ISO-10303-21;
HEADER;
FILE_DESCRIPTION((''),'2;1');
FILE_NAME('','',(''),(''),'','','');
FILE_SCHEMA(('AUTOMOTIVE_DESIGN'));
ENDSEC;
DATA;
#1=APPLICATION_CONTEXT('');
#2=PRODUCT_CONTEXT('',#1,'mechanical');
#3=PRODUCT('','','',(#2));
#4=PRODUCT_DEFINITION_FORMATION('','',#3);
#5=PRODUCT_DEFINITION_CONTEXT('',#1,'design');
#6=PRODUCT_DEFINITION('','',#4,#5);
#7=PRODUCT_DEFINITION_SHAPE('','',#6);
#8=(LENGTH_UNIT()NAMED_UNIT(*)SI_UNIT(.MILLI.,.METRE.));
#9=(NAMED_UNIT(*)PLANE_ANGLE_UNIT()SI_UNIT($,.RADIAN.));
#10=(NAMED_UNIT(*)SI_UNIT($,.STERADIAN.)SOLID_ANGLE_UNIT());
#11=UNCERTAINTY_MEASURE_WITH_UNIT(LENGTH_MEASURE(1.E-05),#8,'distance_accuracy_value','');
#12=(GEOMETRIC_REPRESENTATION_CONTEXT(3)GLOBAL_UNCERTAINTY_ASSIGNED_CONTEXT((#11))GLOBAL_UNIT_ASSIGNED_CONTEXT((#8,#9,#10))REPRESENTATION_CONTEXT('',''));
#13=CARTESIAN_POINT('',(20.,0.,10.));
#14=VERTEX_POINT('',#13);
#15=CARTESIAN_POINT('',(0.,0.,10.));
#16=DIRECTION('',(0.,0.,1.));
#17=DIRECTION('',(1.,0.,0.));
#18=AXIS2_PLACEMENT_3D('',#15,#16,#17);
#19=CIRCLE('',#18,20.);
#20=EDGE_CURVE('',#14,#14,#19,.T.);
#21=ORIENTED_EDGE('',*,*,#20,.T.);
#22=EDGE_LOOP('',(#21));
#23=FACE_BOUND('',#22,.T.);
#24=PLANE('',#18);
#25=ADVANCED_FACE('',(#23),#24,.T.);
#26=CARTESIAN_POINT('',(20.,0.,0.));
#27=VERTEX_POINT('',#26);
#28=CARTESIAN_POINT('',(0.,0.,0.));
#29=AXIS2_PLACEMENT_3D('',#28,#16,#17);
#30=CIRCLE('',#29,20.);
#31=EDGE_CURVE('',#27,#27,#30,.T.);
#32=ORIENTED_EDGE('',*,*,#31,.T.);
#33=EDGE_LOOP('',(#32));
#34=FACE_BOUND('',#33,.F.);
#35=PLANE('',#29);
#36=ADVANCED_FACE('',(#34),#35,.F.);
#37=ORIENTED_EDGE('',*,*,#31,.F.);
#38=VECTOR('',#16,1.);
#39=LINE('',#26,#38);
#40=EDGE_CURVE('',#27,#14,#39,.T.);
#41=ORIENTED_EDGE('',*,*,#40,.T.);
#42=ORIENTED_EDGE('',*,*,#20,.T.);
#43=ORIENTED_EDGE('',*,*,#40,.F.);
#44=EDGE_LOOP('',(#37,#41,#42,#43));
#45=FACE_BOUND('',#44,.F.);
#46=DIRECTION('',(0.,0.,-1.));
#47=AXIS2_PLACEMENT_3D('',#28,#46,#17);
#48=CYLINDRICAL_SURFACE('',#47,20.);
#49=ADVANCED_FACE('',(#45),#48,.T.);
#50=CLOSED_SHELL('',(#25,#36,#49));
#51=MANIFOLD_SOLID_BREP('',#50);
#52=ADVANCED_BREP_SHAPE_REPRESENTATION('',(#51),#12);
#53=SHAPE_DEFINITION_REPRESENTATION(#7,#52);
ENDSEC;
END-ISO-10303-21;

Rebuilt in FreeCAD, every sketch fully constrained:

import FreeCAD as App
import Part
import Sketcher

doc = App.newDocument("Part")
body = doc.addObject("PartDesign::Body", "Body")

# Sketch on XY plane
sketch1 = body.newObject("Sketcher::SketchObject", "Sketch")
sketch1.AttachmentSupport = (doc.getObject("XY_Plane"), [""])
sketch1.MapMode = "FlatFace"
sketch1.addGeometry(Part.Circle(App.Vector(0, 0, 0), App.Vector(0, 0, 1), 20), False)
sketch1.addConstraint(Sketcher.Constraint("Coincident", 0, 3, -1, 1))
sketch1.addConstraint(Sketcher.Constraint("Diameter", 0, 40.0))
pad1 = body.newObject("PartDesign::Pad", "Pad")
pad1.Profile = sketch1
pad1.Length = 10

doc.recompute()
